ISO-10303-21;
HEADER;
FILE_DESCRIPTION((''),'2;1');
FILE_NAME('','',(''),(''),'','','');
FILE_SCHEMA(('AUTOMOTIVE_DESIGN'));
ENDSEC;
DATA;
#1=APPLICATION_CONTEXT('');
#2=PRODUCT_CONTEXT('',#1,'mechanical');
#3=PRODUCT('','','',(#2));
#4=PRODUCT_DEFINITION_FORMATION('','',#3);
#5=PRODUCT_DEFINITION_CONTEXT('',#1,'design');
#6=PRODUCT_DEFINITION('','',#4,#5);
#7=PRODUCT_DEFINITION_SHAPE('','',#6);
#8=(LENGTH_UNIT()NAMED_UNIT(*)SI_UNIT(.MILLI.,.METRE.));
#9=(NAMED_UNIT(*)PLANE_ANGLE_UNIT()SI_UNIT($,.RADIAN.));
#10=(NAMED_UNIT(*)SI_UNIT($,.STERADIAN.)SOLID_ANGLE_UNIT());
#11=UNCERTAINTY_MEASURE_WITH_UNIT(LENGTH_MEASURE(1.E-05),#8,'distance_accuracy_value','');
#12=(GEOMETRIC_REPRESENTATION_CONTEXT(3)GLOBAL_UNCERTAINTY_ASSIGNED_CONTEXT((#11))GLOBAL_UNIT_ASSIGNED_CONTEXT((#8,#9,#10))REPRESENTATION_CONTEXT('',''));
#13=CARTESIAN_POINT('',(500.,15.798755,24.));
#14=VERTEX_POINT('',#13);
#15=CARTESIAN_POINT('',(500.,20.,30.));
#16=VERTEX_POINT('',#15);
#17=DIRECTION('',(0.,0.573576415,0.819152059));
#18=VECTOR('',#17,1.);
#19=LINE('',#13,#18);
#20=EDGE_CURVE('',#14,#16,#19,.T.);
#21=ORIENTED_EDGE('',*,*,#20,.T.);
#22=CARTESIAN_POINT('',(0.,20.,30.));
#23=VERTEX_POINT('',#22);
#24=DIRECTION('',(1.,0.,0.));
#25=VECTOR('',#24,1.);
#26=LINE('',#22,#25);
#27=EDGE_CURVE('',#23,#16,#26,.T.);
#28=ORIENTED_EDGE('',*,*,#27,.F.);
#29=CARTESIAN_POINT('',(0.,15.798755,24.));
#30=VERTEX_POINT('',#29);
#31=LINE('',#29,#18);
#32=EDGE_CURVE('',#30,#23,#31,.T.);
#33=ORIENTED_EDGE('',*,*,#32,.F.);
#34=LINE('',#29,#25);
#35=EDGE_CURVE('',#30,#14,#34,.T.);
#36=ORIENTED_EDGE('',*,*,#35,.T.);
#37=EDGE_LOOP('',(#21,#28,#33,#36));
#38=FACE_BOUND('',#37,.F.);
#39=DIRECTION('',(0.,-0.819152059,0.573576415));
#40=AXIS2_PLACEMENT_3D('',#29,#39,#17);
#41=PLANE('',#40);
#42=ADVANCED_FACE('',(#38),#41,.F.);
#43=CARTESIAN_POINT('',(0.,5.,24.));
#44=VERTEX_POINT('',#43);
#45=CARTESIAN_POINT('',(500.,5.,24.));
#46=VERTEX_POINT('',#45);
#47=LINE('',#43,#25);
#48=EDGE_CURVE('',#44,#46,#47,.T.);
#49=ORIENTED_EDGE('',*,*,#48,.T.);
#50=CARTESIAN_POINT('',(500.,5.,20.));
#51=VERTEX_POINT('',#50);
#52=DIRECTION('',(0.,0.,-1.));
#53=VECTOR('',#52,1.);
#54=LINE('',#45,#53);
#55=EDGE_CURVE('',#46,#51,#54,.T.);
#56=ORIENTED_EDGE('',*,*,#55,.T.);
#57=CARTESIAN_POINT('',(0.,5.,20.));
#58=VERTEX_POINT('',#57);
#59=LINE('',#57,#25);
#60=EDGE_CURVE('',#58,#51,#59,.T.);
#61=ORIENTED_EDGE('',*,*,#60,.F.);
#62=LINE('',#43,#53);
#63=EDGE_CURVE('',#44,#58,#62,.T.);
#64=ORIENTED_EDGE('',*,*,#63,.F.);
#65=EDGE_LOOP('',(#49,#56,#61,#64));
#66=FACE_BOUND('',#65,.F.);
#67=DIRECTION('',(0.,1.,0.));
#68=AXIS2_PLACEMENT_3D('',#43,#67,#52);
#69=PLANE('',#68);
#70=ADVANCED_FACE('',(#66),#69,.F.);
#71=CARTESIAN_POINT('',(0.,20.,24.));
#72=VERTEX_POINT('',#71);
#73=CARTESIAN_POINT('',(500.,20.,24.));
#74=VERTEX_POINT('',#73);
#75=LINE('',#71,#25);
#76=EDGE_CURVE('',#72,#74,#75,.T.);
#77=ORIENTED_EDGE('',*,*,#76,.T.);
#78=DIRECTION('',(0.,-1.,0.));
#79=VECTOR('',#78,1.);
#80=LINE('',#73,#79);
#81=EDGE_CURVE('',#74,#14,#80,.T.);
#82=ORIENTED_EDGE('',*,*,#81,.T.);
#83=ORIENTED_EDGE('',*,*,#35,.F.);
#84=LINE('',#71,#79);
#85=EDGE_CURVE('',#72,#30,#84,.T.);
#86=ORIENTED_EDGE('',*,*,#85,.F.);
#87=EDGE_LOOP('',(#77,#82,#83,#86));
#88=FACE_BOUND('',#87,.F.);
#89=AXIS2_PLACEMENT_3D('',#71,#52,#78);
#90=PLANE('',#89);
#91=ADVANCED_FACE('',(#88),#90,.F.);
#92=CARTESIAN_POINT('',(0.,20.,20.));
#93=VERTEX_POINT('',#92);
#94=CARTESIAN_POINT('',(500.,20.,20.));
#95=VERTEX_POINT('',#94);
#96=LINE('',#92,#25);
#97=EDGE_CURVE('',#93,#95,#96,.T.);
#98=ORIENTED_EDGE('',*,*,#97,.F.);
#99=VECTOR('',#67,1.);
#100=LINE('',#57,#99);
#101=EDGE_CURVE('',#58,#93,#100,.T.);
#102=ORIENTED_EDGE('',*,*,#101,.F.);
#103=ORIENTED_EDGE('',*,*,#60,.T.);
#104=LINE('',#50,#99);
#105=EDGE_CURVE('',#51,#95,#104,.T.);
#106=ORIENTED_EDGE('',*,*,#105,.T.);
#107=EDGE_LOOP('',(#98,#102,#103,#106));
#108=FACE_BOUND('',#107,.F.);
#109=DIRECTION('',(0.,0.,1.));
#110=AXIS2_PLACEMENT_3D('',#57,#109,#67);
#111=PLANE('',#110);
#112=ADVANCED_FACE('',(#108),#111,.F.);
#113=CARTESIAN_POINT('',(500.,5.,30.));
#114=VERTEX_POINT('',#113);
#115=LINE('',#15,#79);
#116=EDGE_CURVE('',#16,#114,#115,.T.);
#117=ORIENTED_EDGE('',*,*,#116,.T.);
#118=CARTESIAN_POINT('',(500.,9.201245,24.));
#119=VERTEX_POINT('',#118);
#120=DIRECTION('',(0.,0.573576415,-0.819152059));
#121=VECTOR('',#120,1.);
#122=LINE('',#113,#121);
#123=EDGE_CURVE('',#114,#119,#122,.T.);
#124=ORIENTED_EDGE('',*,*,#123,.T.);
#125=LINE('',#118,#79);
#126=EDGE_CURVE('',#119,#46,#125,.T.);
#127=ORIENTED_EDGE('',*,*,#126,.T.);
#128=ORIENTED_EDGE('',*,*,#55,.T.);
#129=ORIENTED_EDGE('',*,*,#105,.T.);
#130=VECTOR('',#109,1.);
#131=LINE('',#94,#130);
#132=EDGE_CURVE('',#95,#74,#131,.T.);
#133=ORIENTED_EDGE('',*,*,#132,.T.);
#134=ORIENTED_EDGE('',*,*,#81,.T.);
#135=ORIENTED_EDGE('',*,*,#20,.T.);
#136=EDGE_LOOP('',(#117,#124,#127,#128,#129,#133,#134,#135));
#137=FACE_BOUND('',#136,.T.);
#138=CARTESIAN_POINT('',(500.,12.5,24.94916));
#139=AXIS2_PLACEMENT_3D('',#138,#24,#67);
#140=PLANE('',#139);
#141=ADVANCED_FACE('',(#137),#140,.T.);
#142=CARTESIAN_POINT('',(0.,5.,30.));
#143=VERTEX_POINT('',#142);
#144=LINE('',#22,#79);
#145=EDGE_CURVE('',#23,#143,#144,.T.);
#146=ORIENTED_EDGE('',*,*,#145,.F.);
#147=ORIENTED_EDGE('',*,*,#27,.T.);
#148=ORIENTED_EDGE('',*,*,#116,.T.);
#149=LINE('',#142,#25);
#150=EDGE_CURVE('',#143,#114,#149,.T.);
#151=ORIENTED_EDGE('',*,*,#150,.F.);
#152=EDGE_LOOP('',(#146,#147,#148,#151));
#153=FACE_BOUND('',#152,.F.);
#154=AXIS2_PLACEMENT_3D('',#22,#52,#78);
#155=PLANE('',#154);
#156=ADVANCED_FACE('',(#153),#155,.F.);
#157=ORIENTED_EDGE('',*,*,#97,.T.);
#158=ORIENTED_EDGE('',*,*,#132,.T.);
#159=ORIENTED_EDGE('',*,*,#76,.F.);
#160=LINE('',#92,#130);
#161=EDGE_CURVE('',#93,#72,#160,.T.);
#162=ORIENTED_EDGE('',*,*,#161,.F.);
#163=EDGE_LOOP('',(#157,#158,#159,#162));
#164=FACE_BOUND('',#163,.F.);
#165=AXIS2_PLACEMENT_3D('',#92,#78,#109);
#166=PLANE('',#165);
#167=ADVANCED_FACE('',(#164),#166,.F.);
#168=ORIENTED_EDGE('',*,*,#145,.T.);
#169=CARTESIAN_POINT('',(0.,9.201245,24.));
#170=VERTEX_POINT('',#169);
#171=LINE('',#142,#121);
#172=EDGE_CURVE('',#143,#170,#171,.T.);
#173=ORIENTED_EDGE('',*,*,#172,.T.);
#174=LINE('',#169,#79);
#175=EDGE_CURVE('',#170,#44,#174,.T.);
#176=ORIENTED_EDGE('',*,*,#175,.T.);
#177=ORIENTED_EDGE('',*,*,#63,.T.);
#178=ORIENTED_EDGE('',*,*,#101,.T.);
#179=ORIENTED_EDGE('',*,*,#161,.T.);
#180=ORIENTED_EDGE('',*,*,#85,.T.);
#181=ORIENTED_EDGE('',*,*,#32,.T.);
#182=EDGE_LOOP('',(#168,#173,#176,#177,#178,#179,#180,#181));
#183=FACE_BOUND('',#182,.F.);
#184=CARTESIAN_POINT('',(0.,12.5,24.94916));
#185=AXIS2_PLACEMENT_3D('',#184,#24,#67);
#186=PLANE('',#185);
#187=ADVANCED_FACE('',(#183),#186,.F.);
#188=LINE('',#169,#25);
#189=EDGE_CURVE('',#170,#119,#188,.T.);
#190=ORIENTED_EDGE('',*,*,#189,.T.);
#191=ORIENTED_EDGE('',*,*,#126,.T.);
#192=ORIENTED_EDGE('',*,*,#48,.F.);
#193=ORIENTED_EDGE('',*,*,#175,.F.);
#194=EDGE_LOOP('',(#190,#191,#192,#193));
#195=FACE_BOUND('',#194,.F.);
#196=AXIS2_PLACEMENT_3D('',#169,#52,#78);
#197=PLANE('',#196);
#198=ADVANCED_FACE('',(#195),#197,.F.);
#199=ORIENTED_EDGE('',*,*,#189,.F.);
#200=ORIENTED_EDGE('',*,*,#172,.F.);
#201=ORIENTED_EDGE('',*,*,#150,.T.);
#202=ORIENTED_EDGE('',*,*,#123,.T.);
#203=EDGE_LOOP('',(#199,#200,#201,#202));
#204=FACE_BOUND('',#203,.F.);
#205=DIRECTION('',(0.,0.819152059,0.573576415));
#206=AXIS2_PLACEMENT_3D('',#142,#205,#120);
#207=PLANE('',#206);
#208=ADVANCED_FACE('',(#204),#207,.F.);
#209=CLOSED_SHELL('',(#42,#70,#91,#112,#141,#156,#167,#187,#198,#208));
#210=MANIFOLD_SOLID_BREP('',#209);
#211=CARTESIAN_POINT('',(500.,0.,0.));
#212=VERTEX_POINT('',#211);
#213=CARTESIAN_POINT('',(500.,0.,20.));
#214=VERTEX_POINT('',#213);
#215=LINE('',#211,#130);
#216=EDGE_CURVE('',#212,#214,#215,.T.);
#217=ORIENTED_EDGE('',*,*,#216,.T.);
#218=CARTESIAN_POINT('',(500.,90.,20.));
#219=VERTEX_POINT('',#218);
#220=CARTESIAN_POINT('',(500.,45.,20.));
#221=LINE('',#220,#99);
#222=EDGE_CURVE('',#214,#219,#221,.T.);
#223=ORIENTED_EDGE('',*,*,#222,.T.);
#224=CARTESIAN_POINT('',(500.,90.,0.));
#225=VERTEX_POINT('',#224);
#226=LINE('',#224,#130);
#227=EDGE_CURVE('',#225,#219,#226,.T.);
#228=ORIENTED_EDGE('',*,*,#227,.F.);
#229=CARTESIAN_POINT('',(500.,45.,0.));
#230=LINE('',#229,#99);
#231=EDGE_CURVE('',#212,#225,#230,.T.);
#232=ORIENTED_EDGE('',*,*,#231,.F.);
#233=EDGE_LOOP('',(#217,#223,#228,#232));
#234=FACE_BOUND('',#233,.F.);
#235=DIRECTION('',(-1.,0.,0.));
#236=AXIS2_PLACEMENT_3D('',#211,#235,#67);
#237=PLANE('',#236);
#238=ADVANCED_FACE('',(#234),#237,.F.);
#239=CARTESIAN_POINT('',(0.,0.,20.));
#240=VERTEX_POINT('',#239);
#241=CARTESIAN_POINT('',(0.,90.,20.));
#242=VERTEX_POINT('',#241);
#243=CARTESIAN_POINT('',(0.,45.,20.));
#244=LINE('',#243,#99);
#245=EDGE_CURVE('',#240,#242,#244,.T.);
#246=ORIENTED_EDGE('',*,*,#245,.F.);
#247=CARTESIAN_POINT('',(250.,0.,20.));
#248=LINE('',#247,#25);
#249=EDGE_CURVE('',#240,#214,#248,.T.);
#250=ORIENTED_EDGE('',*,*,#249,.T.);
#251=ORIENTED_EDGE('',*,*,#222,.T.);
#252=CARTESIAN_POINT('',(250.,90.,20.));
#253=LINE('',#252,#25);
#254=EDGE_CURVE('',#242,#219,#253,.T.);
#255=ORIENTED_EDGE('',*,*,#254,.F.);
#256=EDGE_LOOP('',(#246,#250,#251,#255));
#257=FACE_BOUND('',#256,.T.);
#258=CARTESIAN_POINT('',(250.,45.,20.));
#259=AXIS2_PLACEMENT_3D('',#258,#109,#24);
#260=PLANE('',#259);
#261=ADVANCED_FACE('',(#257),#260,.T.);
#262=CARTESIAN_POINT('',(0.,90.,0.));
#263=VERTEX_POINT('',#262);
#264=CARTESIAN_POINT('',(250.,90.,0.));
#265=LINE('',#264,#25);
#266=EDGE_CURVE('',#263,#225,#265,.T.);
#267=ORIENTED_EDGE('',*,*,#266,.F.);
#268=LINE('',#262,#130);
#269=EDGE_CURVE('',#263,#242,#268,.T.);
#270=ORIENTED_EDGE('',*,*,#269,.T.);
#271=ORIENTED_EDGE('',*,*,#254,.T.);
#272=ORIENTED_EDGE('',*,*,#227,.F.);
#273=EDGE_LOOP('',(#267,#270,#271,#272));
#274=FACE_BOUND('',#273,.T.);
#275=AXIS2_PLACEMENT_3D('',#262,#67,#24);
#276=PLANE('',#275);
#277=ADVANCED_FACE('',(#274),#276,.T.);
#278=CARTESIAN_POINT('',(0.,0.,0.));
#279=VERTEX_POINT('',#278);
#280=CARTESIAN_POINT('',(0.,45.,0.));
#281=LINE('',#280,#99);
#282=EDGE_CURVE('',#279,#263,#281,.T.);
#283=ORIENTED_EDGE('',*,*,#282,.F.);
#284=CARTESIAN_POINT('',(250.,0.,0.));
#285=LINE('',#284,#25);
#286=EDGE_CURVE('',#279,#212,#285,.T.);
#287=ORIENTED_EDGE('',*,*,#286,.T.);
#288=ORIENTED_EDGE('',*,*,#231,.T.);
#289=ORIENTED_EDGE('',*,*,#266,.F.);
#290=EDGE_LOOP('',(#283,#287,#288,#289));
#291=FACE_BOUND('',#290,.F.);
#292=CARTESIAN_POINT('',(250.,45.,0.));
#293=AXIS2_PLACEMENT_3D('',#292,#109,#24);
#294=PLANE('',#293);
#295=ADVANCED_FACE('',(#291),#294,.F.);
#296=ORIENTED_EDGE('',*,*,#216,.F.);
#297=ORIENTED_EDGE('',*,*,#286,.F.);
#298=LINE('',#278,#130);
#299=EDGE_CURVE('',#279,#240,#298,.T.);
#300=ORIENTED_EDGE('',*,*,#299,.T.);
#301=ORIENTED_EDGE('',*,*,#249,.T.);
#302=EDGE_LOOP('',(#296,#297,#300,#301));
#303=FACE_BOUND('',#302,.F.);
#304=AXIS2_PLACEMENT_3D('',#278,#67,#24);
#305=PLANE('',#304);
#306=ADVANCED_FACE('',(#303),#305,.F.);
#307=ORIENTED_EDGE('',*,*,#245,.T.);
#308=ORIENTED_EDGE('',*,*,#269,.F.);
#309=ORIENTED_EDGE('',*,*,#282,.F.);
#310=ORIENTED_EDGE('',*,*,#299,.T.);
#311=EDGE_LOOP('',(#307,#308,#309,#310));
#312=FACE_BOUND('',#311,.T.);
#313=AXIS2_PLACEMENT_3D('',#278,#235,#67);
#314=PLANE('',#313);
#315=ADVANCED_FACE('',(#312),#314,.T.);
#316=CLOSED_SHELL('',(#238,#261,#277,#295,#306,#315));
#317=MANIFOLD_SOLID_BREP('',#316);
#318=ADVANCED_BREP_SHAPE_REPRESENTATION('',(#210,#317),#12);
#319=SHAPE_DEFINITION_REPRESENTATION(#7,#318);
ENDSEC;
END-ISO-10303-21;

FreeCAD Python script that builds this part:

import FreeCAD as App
import Part
import Sketcher

V = App.Vector
Q = App.Units.Quantity


def add_polygon(sketch, points):
    """Adds a closed chain of lines whose ends are joined by coincident constraints."""
    first, n = sketch.GeometryCount, len(points)
    for a, b in zip(points, points[1:] + points[:1]):
        sketch.addGeometry(Part.LineSegment(App.Vector(*a, 0), App.Vector(*b, 0)), False)
    for i in range(n):
        sketch.addConstraint(Sketcher.Constraint("Coincident", first + i, 2, first + (i + 1) % n, 1))

doc = App.newDocument("Part")
body = doc.addObject("PartDesign::Body", "Body")

# Sketch on XY plane
sketch1 = body.newObject("Sketcher::SketchObject", "Sketch")
sketch1.AttachmentSupport = (doc.getObject("XY_Plane"), [""])
sketch1.MapMode = "FlatFace"
add_polygon(sketch1, [(0, 90), (0, 0), (500, 0), (500, 90)])  # lines 0-3
sketch1.addConstraint([
    Sketcher.Constraint("Vertical", 0),
    Sketcher.Constraint("Horizontal", 1),
    Sketcher.Constraint("Vertical", 2),
    Sketcher.Constraint("Horizontal", 3),
    Sketcher.Constraint("Coincident", 0, 2, -1, 1),
    Sketcher.Constraint("DistanceX", 1, 1, 1, 2, 500.0),
    Sketcher.Constraint("DistanceY", 0, 2, 0, 1, 90.0),
])
pad1 = body.newObject("PartDesign::Pad", "Pad")
pad1.Profile = sketch1
pad1.Length = 20
body2 = doc.addObject("PartDesign::Body", "Body001")

# Sketch on YZ plane
sketch2 = body2.newObject("Sketcher::SketchObject", "Sketch001")
sketch2.AttachmentSupport = (doc.getObject("YZ_Plane001"), [""])
sketch2.MapMode = "FlatFace"
add_polygon(sketch2, [(5, 20), (20, 20), (20, 24), (15.8, 24), (20, 30), (5, 30), (9.2, 24), (5, 24)])  # lines 0-7
sketch2.addConstraint([
    Sketcher.Constraint("Horizontal", 0),
    Sketcher.Constraint("Vertical", 1),
    Sketcher.Constraint("Horizontal", 2),
    Sketcher.Constraint("Horizontal", 4),
    Sketcher.Constraint("Horizontal", 6),
    Sketcher.Constraint("Vertical", 7),
    Sketcher.Constraint("Horizontal", 2, 2, 5, 2),
    Sketcher.Constraint("Vertical", 1, 2, 3, 2),
    Sketcher.Constraint("Vertical", 4, 2, 6, 2),
    Sketcher.Constraint("Equal", 2, 6),
    Sketcher.Constraint("DistanceX", 0, 1, 0, 2, 15.0),
    Sketcher.Constraint("DistanceY", 1, 1, 1, 2, 4.0),
    Sketcher.Constraint("Angle", 3, Q("55.000001 deg")),
    Sketcher.Constraint("DistanceX", -1, 1, 0, 2, 20.0),
    Sketcher.Constraint("DistanceY", -1, 1, 0, 2, 20.0),
    Sketcher.Constraint("DistanceY", -1, 1, 3, 2, 30.0),
])
pad2 = body2.newObject("PartDesign::Pad", "Pad001")
pad2.Profile = sketch2
pad2.Length = 500

doc.recompute()
